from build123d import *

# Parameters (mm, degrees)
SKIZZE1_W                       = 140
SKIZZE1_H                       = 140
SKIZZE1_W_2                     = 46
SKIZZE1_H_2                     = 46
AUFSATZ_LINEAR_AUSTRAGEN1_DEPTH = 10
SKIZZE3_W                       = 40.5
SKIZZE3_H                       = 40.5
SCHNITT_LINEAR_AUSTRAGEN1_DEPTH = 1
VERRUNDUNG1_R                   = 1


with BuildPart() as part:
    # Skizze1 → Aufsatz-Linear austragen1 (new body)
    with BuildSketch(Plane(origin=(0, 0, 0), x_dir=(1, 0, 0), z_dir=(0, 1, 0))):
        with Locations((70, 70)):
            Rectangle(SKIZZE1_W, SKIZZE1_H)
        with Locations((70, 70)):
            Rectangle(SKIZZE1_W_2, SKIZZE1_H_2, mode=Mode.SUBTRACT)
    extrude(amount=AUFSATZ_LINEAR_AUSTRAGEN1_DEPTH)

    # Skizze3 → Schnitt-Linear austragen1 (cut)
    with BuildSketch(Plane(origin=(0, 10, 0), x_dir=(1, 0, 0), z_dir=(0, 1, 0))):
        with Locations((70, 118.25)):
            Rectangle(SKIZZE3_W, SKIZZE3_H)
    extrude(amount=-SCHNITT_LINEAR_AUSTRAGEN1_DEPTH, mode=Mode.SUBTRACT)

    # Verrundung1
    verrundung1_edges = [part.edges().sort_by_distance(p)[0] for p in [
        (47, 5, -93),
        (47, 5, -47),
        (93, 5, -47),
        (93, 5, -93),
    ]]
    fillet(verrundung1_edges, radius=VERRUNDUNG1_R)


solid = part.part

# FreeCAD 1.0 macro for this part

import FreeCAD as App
import Part
import Sketcher
from FreeCAD import Vector
Q = App.Units.Quantity


def edges_at(feature, points):
    """Names of the edges that pass closest to the given points."""
    edges = feature.Shape.Edges
    near = lambda p: min(range(len(edges)), key=lambda i: edges[i].distToShape(Part.Vertex(*p))[0])
    return sorted({f"Edge{near(p) + 1}" for p in points})


def add_polygon(sketch, points):
    """Adds a closed chain of lines whose ends are joined by coincident constraints."""
    first, n = sketch.GeometryCount, len(points)
    for a, b in zip(points, points[1:] + points[:1]):
        sketch.addGeometry(Part.LineSegment(App.Vector(*a, 0), App.Vector(*b, 0)), False)
    for i in range(n):
        sketch.addConstraint(Sketcher.Constraint("Coincident", first + i, 2, first + (i + 1) % n, 1))

doc = App.newDocument("Part")
params = doc.addObject("Spreadsheet::Sheet", "Params")
for row, (alias, value) in enumerate([
    ("sketch1_width", "140 mm"),
    ("sketch1_width2", "46 mm"),
    ("pad1_length", "10 mm"),
    ("sketch2_width", "40.5 mm"),
    ("pocket1_length", "1 mm"),
    ("fillet_radius", "1 mm"),
], start=1):
    params.set(f"A{row}", alias)
    params.set(f"B{row}", "=" + value)
    params.setAlias(f"B{row}", alias)

body = doc.addObject("PartDesign::Body", "Body")

sketch1 = body.newObject("Sketcher::SketchObject", "Sketch")
sketch1.AttachmentSupport = (doc.getObject("XZ_Plane"), [""])
sketch1.MapMode = "FlatFace"
add_polygon(sketch1, [(0, -140), (0, 0), (140, 0), (140, -140)])
add_polygon(sketch1, [(93, -47), (47, -47), (47, -93), (93, -93)])
sketch1.addConstraint(Sketcher.Constraint("Vertical", 0))
sketch1.addConstraint(Sketcher.Constraint("Horizontal", 1))
sketch1.addConstraint(Sketcher.Constraint("Vertical", 2))
sketch1.addConstraint(Sketcher.Constraint("Horizontal", 3))
sketch1.addConstraint(Sketcher.Constraint("Horizontal", 4))
sketch1.addConstraint(Sketcher.Constraint("Vertical", 5))
sketch1.addConstraint(Sketcher.Constraint("Horizontal", 6))
sketch1.addConstraint(Sketcher.Constraint("Vertical", 7))
sketch1.addConstraint(Sketcher.Constraint("Coincident", 0, 2, -1, 1))
sketch1.addConstraint(Sketcher.Constraint("Equal", 3, 0))
sketch1.addConstraint(Sketcher.Constraint("Equal", 6, 5))
sketch1.addConstraint(Sketcher.Constraint("DistanceX", 1, 1, 1, 2, Q("140 mm")))
sketch1.addConstraint(Sketcher.Constraint("DistanceX", 4, 2, 4, 1, Q("46 mm")))
sketch1.addConstraint(Sketcher.Constraint("DistanceX", -1, 1, 4, 2, Q("47 mm")))
sketch1.addConstraint(Sketcher.Constraint("DistanceY", 4, 2, -1, 1, Q("47 mm")))
sketch1.setExpression("Constraints[19]", "Params.sketch1_width")
sketch1.setExpression("Constraints[20]", "Params.sketch1_width2")
pad1 = body.newObject("PartDesign::Pad", "Pad")
pad1.Profile = sketch1
pad1.setExpression("Length", "Params.pad1_length")
pad1.Reversed = True

sketch2 = body.newObject("Sketcher::SketchObject", "Sketch001")
sketch2.AttachmentSupport = (doc.getObject("XZ_Plane"), [""])
sketch2.MapMode = "FlatFace"
sketch2.AttachmentOffset = App.Placement(Vector(0, 0, -10), App.Rotation())
add_polygon(sketch2, [(50, -138), (50, -98), (90, -98), (90, -138)])
sketch2.addConstraint(Sketcher.Constraint("Vertical", 0))
sketch2.addConstraint(Sketcher.Constraint("Horizontal", 1))
sketch2.addConstraint(Sketcher.Constraint("Vertical", 2))
sketch2.addConstraint(Sketcher.Constraint("Horizontal", 3))
sketch2.addConstraint(Sketcher.Constraint("Equal", 3, 0))
sketch2.addConstraint(Sketcher.Constraint("DistanceX", 1, 1, 1, 2, Q("40.5 mm")))
sketch2.addConstraint(Sketcher.Constraint("DistanceY", 0, 2, -1, 1, Q("98 mm")))
sketch2.addConstraint(Sketcher.Constraint("DistanceX", -1, 1, 0, 2, Q("49.75 mm")))
sketch2.setExpression("Constraints[9]", "Params.sketch2_width")
pocket1 = body.newObject("PartDesign::Pocket", "Pocket")
pocket1.Profile = sketch2
pocket1.setExpression("Length", "Params.pocket1_length")
pocket1.Reversed = True
doc.recompute()

fillet = body.newObject("PartDesign::Fillet", "Fillet")
fillet.Base = (pocket1, edges_at(pocket1, [
    (47, 5, -93),
    (47, 5, -47),
    (93, 5, -47),
    (93, 5, -93),
]))
fillet.setExpression("Radius", "Params.fillet_radius")

doc.recompute()
